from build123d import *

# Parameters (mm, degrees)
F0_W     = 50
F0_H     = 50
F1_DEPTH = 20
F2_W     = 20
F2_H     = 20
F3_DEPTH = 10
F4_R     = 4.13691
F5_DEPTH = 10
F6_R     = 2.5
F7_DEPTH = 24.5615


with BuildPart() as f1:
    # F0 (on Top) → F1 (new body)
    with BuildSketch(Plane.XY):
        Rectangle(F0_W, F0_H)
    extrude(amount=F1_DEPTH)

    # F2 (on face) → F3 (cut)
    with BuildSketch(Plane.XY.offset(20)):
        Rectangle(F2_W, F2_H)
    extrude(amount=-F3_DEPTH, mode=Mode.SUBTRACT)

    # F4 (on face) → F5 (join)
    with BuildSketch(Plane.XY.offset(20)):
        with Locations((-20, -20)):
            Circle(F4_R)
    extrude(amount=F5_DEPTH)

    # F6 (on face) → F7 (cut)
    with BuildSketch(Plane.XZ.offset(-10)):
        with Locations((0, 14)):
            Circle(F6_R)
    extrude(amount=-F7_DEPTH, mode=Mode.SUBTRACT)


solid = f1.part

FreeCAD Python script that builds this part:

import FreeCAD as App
import Part
import Sketcher

V = App.Vector


def add_polygon(sketch, points):
    """Adds a closed chain of lines whose ends are joined by coincident constraints."""
    first, n = sketch.GeometryCount, len(points)
    for a, b in zip(points, points[1:] + points[:1]):
        sketch.addGeometry(Part.LineSegment(App.Vector(*a, 0), App.Vector(*b, 0)), False)
    for i in range(n):
        sketch.addConstraint(Sketcher.Constraint("Coincident", first + i, 2, first + (i + 1) % n, 1))

doc = App.newDocument("Part")
body = doc.addObject("PartDesign::Body", "Body")

# Sketch on XY plane
sketch1 = doc.addObject("Sketcher::SketchObject", "Sketch")
body.addObject(sketch1)
sketch1.AttachmentSupport = (doc.XY_Plane, [""])
sketch1.MapMode = "FlatFace"
add_polygon(sketch1, [(-25, 25), (-25, -25), (25, -25), (25, 25)])  # lines 0-3
sketch1.addConstraint(Sketcher.Constraint("Vertical", 0))
sketch1.addConstraint(Sketcher.Constraint("Horizontal", 1))
sketch1.addConstraint(Sketcher.Constraint("Vertical", 2))
sketch1.addConstraint(Sketcher.Constraint("Horizontal", 3))
sketch1.addConstraint(Sketcher.Constraint("Symmetric", 0, 2, 2, 2, -1, 1))
sketch1.addConstraint(Sketcher.Constraint("Equal", 3, 0))
sketch1.addConstraint(Sketcher.Constraint("DistanceX", 1, 1, 1, 2, 50.0))
pad1 = doc.addObject("PartDesign::Pad", "Pad")
body.addObject(pad1)
pad1.Profile = sketch1
pad1.Length = 20

# Sketch on XY plane
sketch2 = doc.addObject("Sketcher::SketchObject", "Sketch001")
body.addObject(sketch2)
sketch2.AttachmentSupport = (doc.XY_Plane, [""])
sketch2.MapMode = "FlatFace"
sketch2.AttachmentOffset = App.Placement(V(0, 0, 20), App.Rotation())
add_polygon(sketch2, [(-10, 10), (-10, -10), (10, -10), (10, 10)])  # lines 0-3
sketch2.addConstraint(Sketcher.Constraint("Vertical", 0))
sketch2.addConstraint(Sketcher.Constraint("Horizontal", 1))
sketch2.addConstraint(Sketcher.Constraint("Vertical", 2))
sketch2.addConstraint(Sketcher.Constraint("Horizontal", 3))
sketch2.addConstraint(Sketcher.Constraint("Symmetric", 0, 2, 2, 2, -1, 1))
sketch2.addConstraint(Sketcher.Constraint("Equal", 3, 0))
sketch2.addConstraint(Sketcher.Constraint("DistanceX", 1, 1, 1, 2, 20.0))
pocket1 = doc.addObject("PartDesign::Pocket", "Pocket")
body.addObject(pocket1)
pocket1.Profile = sketch2
pocket1.Length = 10

# Sketch on XY plane
sketch3 = doc.addObject("Sketcher::SketchObject", "Sketch002")
body.addObject(sketch3)
sketch3.AttachmentSupport = (doc.XY_Plane, [""])
sketch3.MapMode = "FlatFace"
sketch3.AttachmentOffset = App.Placement(V(0, 0, 20), App.Rotation())
sketch3.addGeometry(Part.Circle(V(-20, -20, 0), V(0, 0, 1), 4.1), False)
sketch3.addConstraint(Sketcher.Constraint("DistanceX", 0, 3, -1, 1, 20.0))
sketch3.addConstraint(Sketcher.Constraint("DistanceY", 0, 3, -1, 1, 20.0))
sketch3.addConstraint(Sketcher.Constraint("Diameter", 0, 8.27382))
pad2 = doc.addObject("PartDesign::Pad", "Pad001")
body.addObject(pad2)
pad2.Profile = sketch3
pad2.Length = 10

# Sketch on XZ plane
sketch4 = doc.addObject("Sketcher::SketchObject", "Sketch003")
body.addObject(sketch4)
sketch4.AttachmentSupport = (doc.XZ_Plane, [""])
sketch4.MapMode = "FlatFace"
sketch4.AttachmentOffset = App.Placement(V(0, 0, -10), App.Rotation())
sketch4.addGeometry(Part.Circle(V(0, 14, 0), V(0, 0, 1), 2.5), False)
sketch4.addConstraint(Sketcher.Constraint("PointOnObject", 0, 3, -2))
sketch4.addConstraint(Sketcher.Constraint("Diameter", 0, 5.0))
sketch4.addConstraint(Sketcher.Constraint("DistanceY", -1, 1, 0, 3, 14.0))
pocket2 = doc.addObject("PartDesign::Pocket", "Pocket001")
body.addObject(pocket2)
pocket2.Profile = sketch4
pocket2.Length = 24.5615

doc.recompute()
